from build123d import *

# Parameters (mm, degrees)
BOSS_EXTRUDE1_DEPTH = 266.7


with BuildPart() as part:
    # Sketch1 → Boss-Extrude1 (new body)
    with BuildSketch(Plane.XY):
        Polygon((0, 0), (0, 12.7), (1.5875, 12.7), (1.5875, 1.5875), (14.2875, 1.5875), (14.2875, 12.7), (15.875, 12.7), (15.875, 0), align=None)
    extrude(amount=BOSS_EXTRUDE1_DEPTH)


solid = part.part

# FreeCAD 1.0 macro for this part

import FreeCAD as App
import Part
import Sketcher
Q = App.Units.Quantity


def add_polygon(sketch, points):
    """Adds a closed chain of lines whose ends are joined by coincident constraints."""
    first, n = sketch.GeometryCount, len(points)
    for a, b in zip(points, points[1:] + points[:1]):
        sketch.addGeometry(Part.LineSegment(App.Vector(*a, 0), App.Vector(*b, 0)), False)
    for i in range(n):
        sketch.addConstraint(Sketcher.Constraint("Coincident", first + i, 2, first + (i + 1) % n, 1))

doc = App.newDocument("Part")
body = doc.addObject("PartDesign::Body", "Body")

# Sketch on XY plane
sketch1 = body.newObject("Sketcher::SketchObject", "Sketch")
sketch1.AttachmentSupport = (doc.getObject("XY_Plane"), [""])
sketch1.MapMode = "FlatFace"
add_polygon(sketch1, [(0, 12.7), (0, 0), (15.875, 0), (15.875, 12.7), (14.2875, 12.7), (14.2875, 1.5875), (1.5875, 1.5875), (1.5875, 12.7)])  # lines 0-7
sketch1.addConstraint([
    Sketcher.Constraint("Vertical", 0),
    Sketcher.Constraint("Horizontal", 1),
    Sketcher.Constraint("Vertical", 2),
    Sketcher.Constraint("Horizontal", 3),
    Sketcher.Constraint("Vertical", 4),
    Sketcher.Constraint("Horizontal", 5),
    Sketcher.Constraint("Vertical", 6),
    Sketcher.Constraint("Horizontal", 7),
    Sketcher.Constraint("Coincident", 0, 2, -1, 1),
    Sketcher.Constraint("Horizontal", 3, 2, 6, 2),
    Sketcher.Constraint("Equal", 3, 7),
    Sketcher.Constraint("Equal", 5, 0),
    Sketcher.Constraint("DistanceX", 5, 2, 5, 1, Q("0.5 in")),
    Sketcher.Constraint("DistanceX", 1, 1, 1, 2, Q("0.625 in")),
    Sketcher.Constraint("DistanceY", 4, 2, 4, 1, Q("0.4375 in")),
])
pad1 = body.newObject("PartDesign::Pad", "Pad")
pad1.Profile = sketch1
pad1.Length = Q("10.5 in")

doc.recompute()
